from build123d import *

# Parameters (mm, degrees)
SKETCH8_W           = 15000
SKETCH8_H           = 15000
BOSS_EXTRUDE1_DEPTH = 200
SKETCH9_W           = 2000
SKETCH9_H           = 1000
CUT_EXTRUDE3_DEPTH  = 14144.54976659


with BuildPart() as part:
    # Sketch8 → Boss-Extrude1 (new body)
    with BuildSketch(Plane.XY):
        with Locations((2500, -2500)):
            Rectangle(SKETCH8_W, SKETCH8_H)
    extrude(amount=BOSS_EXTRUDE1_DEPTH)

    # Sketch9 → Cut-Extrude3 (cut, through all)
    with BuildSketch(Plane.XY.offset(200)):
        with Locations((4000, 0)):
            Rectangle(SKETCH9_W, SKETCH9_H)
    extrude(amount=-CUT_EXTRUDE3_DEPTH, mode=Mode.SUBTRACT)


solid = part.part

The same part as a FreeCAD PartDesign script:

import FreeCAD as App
import Part
import Sketcher

V = App.Vector


def add_polygon(sketch, points):
    """Adds a closed chain of lines whose ends are joined by coincident constraints."""
    first, n = sketch.GeometryCount, len(points)
    for a, b in zip(points, points[1:] + points[:1]):
        sketch.addGeometry(Part.LineSegment(App.Vector(*a, 0), App.Vector(*b, 0)), False)
    for i in range(n):
        sketch.addConstraint(Sketcher.Constraint("Coincident", first + i, 2, first + (i + 1) % n, 1))

doc = App.newDocument("Part")
params = doc.addObject("Spreadsheet::Sheet", "Params")
for row, (alias, value) in enumerate([
    ("sketch1_width", "15000 mm"),
    ("pad1_length", "200 mm"),
    ("sketch2_width", "2000 mm"),
    ("sketch2_height", "1000 mm"),
], start=1):
    params.set(f"A{row}", alias)
    params.set(f"B{row}", "=" + value)
    params.setAlias(f"B{row}", alias)

body = doc.addObject("PartDesign::Body", "Body")

# Sketch on XY plane
sketch1 = body.newObject("Sketcher::SketchObject", "Sketch")
sketch1.AttachmentSupport = (doc.getObject("XY_Plane"), [""])
sketch1.MapMode = "FlatFace"
add_polygon(sketch1, [(-5000, 5000), (-5000, -10000), (10000, -10000), (10000, 5000)])  # lines 0-3
sketch1.addConstraint([
    Sketcher.Constraint("Vertical", 0),
    Sketcher.Constraint("Horizontal", 1),
    Sketcher.Constraint("Vertical", 2),
    Sketcher.Constraint("Horizontal", 3),
    Sketcher.Constraint("Equal", 3, 0),
    Sketcher.Constraint("DistanceX", 1, 1, 1, 2, 15000.0),
    Sketcher.Constraint("DistanceX", 0, 2, -1, 1, 5000.0),
    Sketcher.Constraint("DistanceY", 0, 2, -1, 1, 10000.0),
])
sketch1.setExpression("Constraints[9]", "Params.sketch1_width")
pad1 = body.newObject("PartDesign::Pad", "Pad")
pad1.Profile = sketch1
pad1.setExpression("Length", "Params.pad1_length")

# Sketch on XY plane
sketch2 = body.newObject("Sketcher::SketchObject", "Sketch001")
sketch2.AttachmentSupport = (doc.getObject("XY_Plane"), [""])
sketch2.MapMode = "FlatFace"
sketch2.AttachmentOffset = App.Placement(V(0, 0, 200), App.Rotation())
add_polygon(sketch2, [(3000, 500), (3000, -500), (5000, -500), (5000, 500)])  # lines 0-3
sketch2.addConstraint([
    Sketcher.Constraint("Vertical", 0),
    Sketcher.Constraint("Horizontal", 1),
    Sketcher.Constraint("Vertical", 2),
    Sketcher.Constraint("Horizontal", 3),
    Sketcher.Constraint("DistanceX", 1, 1, 1, 2, 2000.0),
    Sketcher.Constraint("DistanceY", 0, 2, 0, 1, 1000.0),
    Sketcher.Constraint("DistanceX", -1, 1, 0, 2, 3000.0),
    Sketcher.Constraint("DistanceY", 0, 2, -1, 1, 500.0),
])
sketch2.setExpression("Constraints[8]", "Params.sketch2_width")
sketch2.setExpression("Constraints[9]", "Params.sketch2_height")
pocket1 = body.newObject("PartDesign::Pocket", "Pocket")
pocket1.Profile = sketch2
pocket1.Type = "ThroughAll"

doc.recompute()
